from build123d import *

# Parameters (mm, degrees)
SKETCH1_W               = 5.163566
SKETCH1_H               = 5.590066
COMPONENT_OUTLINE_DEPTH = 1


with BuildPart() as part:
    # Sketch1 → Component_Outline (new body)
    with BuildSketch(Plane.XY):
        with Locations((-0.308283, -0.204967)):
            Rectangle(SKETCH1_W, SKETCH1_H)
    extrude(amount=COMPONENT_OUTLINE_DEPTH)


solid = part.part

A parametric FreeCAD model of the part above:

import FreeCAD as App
import Part
import Sketcher
Q = App.Units.Quantity


def add_polygon(sketch, points):
    """Adds a closed chain of lines whose ends are joined by coincident constraints."""
    first, n = sketch.GeometryCount, len(points)
    for a, b in zip(points, points[1:] + points[:1]):
        sketch.addGeometry(Part.LineSegment(App.Vector(*a, 0), App.Vector(*b, 0)), False)
    for i in range(n):
        sketch.addConstraint(Sketcher.Constraint("Coincident", first + i, 2, first + (i + 1) % n, 1))

doc = App.newDocument("Part")
body = doc.addObject("PartDesign::Body", "Body")

# Sketch on XY plane
sketch1 = body.newObject("Sketcher::SketchObject", "Sketch")
sketch1.AttachmentSupport = (doc.getObject("XY_Plane"), [""])
sketch1.MapMode = "FlatFace"
add_polygon(sketch1, [(-3, 3), (-3, -3), (2, -3), (2, 3)])  # lines 0-3
sketch1.addConstraint([
    Sketcher.Constraint("Vertical", 0),
    Sketcher.Constraint("Horizontal", 1),
    Sketcher.Constraint("Vertical", 2),
    Sketcher.Constraint("Horizontal", 3),
    Sketcher.Constraint("DistanceY", 0, 2, -1, 1, Q("3 mm")),
    Sketcher.Constraint("DistanceX", -1, 1, 1, 2, Q("2.2735 mm")),
    Sketcher.Constraint("DistanceX", 1, 1, 1, 2, Q("5.163566 mm")),
    Sketcher.Constraint("DistanceY", 0, 2, 0, 1, Q("5.590066 mm")),
])
pad1 = body.newObject("PartDesign::Pad", "Pad")
pad1.Profile = sketch1
pad1.Length = 1

doc.recompute()
